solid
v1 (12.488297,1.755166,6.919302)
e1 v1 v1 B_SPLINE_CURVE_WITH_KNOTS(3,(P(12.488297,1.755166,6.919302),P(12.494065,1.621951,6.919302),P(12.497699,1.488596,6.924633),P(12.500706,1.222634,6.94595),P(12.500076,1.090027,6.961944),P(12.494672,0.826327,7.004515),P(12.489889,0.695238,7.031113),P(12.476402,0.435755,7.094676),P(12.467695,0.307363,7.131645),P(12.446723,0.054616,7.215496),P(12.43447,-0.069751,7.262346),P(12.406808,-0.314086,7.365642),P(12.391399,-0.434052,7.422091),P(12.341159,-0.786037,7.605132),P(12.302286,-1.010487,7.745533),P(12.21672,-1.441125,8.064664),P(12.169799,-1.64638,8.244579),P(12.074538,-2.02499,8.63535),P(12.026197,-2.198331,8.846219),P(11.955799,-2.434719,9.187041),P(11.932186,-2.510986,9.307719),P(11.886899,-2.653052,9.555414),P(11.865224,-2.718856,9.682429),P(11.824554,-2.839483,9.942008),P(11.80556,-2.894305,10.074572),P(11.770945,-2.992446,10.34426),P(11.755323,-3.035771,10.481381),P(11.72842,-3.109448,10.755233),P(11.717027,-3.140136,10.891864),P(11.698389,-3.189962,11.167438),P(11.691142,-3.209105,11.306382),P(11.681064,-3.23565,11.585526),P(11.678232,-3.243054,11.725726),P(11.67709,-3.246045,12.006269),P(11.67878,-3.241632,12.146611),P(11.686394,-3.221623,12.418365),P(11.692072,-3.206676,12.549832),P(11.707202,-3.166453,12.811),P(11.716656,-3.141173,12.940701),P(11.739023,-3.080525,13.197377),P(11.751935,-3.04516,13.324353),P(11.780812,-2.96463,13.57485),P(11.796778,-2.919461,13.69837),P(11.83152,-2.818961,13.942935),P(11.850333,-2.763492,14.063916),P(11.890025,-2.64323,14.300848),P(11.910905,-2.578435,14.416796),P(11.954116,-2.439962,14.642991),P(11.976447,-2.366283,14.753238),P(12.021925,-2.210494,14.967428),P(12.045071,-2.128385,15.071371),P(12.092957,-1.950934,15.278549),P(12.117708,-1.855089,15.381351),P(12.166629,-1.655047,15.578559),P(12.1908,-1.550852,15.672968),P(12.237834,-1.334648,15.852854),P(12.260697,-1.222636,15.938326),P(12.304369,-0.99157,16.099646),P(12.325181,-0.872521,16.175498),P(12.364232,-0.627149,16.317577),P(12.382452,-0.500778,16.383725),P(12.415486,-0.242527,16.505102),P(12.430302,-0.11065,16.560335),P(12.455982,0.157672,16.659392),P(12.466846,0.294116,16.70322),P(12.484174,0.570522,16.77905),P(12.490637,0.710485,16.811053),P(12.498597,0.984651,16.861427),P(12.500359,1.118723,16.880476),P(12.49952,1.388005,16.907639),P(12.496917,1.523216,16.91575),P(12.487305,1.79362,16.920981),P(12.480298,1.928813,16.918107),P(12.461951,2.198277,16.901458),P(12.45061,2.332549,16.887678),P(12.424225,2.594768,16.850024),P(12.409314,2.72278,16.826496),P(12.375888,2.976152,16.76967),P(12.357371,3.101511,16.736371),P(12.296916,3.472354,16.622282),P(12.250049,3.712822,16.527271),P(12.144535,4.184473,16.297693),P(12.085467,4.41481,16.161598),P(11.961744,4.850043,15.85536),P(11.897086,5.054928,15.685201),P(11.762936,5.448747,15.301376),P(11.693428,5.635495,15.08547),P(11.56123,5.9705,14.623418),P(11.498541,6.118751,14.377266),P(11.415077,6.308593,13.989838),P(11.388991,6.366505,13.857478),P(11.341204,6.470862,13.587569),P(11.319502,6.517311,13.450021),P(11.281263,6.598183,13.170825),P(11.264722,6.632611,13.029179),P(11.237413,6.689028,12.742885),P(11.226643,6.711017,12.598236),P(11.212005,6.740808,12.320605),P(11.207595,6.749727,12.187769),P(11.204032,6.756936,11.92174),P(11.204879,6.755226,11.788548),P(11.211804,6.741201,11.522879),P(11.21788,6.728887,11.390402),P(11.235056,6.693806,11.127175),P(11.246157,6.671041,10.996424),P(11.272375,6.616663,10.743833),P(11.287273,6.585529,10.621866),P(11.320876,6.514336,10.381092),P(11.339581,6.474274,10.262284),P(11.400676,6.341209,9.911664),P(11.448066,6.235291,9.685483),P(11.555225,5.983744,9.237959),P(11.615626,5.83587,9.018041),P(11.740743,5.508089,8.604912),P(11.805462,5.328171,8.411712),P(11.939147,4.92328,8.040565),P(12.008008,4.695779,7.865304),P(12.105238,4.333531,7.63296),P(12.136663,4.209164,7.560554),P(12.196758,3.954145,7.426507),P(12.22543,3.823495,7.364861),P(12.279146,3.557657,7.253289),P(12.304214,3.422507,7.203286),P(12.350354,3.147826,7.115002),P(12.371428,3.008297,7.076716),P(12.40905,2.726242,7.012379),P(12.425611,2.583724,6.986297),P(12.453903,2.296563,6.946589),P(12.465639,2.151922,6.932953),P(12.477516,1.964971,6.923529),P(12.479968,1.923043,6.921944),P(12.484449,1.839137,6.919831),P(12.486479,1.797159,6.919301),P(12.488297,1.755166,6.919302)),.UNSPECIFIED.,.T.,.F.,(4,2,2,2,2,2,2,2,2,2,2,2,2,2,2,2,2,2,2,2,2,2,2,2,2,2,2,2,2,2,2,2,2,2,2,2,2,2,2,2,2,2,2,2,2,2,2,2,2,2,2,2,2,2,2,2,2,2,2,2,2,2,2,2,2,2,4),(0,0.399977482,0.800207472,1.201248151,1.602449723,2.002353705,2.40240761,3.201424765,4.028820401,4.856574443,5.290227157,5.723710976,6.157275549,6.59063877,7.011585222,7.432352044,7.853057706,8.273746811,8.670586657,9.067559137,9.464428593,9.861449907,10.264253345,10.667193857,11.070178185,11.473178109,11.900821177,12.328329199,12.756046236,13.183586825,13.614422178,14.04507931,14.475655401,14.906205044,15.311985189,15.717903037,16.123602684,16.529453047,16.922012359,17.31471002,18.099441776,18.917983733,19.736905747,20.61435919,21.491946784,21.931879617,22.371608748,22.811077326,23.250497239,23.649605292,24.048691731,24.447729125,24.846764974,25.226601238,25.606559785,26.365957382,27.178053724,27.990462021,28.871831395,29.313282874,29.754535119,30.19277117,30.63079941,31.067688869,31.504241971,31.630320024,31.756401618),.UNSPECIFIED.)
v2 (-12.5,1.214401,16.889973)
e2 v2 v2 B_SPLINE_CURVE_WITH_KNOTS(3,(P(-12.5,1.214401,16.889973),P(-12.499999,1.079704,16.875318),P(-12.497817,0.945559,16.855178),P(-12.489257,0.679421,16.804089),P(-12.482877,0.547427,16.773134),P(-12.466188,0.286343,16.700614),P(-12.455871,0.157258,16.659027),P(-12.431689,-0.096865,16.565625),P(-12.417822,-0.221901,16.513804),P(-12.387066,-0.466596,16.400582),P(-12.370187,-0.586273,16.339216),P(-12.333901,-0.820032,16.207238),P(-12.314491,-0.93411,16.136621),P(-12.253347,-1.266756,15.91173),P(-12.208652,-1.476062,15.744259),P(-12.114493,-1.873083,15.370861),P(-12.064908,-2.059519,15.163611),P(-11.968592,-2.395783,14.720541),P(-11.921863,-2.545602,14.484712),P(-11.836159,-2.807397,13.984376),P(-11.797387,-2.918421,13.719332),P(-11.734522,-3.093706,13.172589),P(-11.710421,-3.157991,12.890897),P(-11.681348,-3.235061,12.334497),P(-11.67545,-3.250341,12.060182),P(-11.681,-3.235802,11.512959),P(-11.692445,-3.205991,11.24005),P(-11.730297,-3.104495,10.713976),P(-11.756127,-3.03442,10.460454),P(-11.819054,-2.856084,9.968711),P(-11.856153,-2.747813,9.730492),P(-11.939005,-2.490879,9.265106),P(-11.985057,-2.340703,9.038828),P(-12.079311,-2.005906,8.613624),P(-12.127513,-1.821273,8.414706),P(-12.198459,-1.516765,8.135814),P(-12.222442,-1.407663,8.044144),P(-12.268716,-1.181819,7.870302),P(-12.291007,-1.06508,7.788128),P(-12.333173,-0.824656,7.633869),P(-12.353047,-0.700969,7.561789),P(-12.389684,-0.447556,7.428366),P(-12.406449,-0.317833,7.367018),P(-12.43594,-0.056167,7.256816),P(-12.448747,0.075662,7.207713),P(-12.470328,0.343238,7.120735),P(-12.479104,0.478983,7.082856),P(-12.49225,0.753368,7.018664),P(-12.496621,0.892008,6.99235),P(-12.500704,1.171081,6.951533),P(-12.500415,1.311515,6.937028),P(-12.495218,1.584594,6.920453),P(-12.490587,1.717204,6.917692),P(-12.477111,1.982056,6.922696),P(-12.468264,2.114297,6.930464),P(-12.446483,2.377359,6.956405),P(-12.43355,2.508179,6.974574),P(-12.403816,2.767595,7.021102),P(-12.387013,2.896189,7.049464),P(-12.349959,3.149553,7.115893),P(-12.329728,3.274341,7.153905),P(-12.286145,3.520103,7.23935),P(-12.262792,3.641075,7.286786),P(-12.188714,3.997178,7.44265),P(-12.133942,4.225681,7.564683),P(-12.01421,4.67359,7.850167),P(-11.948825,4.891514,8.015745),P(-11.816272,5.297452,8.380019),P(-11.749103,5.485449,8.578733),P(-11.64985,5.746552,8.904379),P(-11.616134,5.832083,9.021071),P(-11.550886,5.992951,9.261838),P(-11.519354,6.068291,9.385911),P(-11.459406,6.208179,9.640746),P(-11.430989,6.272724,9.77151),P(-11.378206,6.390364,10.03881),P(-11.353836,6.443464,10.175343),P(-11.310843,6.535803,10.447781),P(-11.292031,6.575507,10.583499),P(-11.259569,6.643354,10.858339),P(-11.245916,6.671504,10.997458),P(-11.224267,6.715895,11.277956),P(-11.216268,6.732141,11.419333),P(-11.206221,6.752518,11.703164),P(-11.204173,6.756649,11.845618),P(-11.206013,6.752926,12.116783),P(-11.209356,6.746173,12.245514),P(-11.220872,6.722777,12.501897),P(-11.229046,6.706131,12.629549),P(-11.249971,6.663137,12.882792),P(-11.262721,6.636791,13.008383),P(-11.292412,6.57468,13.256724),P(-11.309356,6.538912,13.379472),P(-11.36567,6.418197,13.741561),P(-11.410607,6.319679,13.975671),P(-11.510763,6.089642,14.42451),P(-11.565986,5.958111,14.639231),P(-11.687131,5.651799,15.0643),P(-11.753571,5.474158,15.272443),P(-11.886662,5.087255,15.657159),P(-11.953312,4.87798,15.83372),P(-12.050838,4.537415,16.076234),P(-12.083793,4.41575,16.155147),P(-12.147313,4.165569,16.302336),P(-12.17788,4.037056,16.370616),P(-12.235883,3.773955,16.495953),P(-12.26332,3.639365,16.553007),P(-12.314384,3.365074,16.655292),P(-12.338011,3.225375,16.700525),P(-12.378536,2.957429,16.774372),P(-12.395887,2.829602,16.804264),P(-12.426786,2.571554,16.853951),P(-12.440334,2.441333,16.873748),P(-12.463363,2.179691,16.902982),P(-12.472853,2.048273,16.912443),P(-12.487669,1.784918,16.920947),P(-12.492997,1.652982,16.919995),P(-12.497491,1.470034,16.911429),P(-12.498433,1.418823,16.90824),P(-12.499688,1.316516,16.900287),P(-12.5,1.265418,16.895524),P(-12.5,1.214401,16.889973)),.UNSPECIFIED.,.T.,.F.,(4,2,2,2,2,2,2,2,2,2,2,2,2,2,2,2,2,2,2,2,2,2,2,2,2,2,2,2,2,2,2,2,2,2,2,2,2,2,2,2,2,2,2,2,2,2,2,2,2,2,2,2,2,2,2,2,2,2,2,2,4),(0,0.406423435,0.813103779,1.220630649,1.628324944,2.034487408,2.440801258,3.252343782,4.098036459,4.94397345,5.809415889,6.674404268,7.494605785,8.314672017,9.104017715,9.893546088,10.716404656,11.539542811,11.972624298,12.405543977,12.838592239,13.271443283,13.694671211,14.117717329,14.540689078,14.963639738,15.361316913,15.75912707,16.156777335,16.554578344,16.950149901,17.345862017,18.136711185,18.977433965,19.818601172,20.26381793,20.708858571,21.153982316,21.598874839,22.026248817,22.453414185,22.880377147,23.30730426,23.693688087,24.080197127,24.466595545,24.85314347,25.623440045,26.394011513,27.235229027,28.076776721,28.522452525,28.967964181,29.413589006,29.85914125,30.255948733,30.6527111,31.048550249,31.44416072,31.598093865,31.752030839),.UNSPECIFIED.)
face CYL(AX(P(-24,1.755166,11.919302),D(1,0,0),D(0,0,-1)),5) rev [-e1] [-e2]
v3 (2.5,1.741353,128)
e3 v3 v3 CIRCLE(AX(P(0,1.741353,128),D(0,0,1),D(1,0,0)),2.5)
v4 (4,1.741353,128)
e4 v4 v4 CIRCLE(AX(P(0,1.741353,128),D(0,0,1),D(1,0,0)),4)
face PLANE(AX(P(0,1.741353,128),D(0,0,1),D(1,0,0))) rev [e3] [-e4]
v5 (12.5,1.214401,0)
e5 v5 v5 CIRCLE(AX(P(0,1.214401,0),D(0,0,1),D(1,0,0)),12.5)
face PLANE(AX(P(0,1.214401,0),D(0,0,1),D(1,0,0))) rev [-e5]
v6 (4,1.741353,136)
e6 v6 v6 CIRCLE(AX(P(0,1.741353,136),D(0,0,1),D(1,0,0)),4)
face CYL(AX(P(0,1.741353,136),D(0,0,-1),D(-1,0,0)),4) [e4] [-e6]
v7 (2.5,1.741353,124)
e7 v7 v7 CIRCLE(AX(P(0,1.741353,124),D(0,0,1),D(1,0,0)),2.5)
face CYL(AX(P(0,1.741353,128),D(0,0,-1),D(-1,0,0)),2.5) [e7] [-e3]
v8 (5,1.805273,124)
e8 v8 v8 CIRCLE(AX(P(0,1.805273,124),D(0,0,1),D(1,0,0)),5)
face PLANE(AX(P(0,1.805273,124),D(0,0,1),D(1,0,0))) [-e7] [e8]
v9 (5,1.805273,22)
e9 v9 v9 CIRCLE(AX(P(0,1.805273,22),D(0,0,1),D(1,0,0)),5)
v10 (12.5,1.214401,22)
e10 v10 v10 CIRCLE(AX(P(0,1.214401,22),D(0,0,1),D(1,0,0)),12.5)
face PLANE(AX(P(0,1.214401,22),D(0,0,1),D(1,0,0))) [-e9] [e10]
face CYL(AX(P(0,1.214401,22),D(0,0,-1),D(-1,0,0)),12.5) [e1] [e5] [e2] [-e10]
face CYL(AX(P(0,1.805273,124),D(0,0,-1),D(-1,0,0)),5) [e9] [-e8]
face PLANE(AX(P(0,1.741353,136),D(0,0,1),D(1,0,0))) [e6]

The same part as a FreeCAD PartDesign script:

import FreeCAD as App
import Part
import Sketcher

V = App.Vector

doc = App.newDocument("Part")
body = doc.addObject("PartDesign::Body", "Body")

sketch1 = body.newObject("Sketcher::SketchObject", "Sketch")
sketch1.AttachmentSupport = (doc.getObject("XY_Plane"), [""])
sketch1.MapMode = "FlatFace"
sketch1.addGeometry(Part.Circle(V(0, 1.214401, 0), V(0, 0, 1), 12.5), False)
sketch1.addConstraint(Sketcher.Constraint("PointOnObject", 0, 3, -2))
sketch1.addConstraint(Sketcher.Constraint("Diameter", 0, 25.0))
sketch1.addConstraint(Sketcher.Constraint("DistanceY", -1, 1, 0, 3, 1.214401))
pad1 = body.newObject("PartDesign::Pad", "Pad")
pad1.Profile = sketch1
pad1.Length = 22

sketch2 = body.newObject("Sketcher::SketchObject", "Sketch001")
sketch2.AttachmentSupport = (doc.getObject("YZ_Plane"), [""])
sketch2.MapMode = "FlatFace"
sketch2.AttachmentOffset = App.Placement(V(0, 0, 13), App.Rotation())
sketch2.addGeometry(Part.Circle(V(1.755166, 11.919302, 0), V(0, 0, 1), 5), False)
sketch2.addConstraint(Sketcher.Constraint("Diameter", 0, 10.0))
sketch2.addConstraint(Sketcher.Constraint("DistanceY", -1, 1, 0, 3, 11.919302))
sketch2.addConstraint(Sketcher.Constraint("DistanceX", -1, 1, 0, 3, 1.755166))
pocket1 = body.newObject("PartDesign::Pocket", "Pocket")
pocket1.Profile = sketch2
pocket1.Length = 37

sketch3 = body.newObject("Sketcher::SketchObject", "Sketch002")
sketch3.AttachmentSupport = (doc.getObject("XY_Plane"), [""])
sketch3.MapMode = "FlatFace"
sketch3.AttachmentOffset = App.Placement(V(0, 0, 22), App.Rotation())
sketch3.addGeometry(Part.Circle(V(0, 1.805273, 0), V(0, 0, 1), 5), False)
sketch3.addConstraint(Sketcher.Constraint("PointOnObject", 0, 3, -2))
sketch3.addConstraint(Sketcher.Constraint("Diameter", 0, 10.0))
sketch3.addConstraint(Sketcher.Constraint("DistanceY", -1, 1, 0, 3, 1.805273))
pad2 = body.newObject("PartDesign::Pad", "Pad001")
pad2.Profile = sketch3
pad2.Length = 102

sketch4 = body.newObject("Sketcher::SketchObject", "Sketch003")
sketch4.AttachmentSupport = (doc.getObject("XY_Plane"), [""])
sketch4.MapMode = "FlatFace"
sketch4.AttachmentOffset = App.Placement(V(0, 0, 124), App.Rotation())
sketch4.addGeometry(Part.Circle(V(0, 1.741353, 0), V(0, 0, 1), 2.5), False)
sketch4.addConstraint(Sketcher.Constraint("PointOnObject", 0, 3, -2))
sketch4.addConstraint(Sketcher.Constraint("Diameter", 0, 5.0))
sketch4.addConstraint(Sketcher.Constraint("DistanceY", -1, 1, 0, 3, 1.741353))
pad3 = body.newObject("PartDesign::Pad", "Pad002")
pad3.Profile = sketch4
pad3.Length = 4

sketch5 = body.newObject("Sketcher::SketchObject", "Sketch004")
sketch5.AttachmentSupport = (doc.getObject("XY_Plane"), [""])
sketch5.MapMode = "FlatFace"
sketch5.AttachmentOffset = App.Placement(V(0, 0, 128), App.Rotation())
sketch5.addGeometry(Part.Circle(V(0, 1.741353, 0), V(0, 0, 1), 4), False)
sketch5.addConstraint(Sketcher.Constraint("PointOnObject", 0, 3, -2))
sketch5.addConstraint(Sketcher.Constraint("Diameter", 0, 8.0))
sketch5.addConstraint(Sketcher.Constraint("DistanceY", -1, 1, 0, 3, 1.741353))
pad4 = body.newObject("PartDesign::Pad", "Pad003")
pad4.Profile = sketch5
pad4.Length = 8

doc.recompute()
